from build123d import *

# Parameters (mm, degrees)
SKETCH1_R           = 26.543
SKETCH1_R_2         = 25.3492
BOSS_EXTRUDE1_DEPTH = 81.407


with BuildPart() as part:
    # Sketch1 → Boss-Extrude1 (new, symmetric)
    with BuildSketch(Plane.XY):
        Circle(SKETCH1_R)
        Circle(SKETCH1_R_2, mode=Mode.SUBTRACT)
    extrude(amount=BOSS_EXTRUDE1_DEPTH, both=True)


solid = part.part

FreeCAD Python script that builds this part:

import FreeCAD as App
import Part
import Sketcher
Q = App.Units.Quantity

doc = App.newDocument("Part")
body = doc.addObject("PartDesign::Body", "Body")

sketch1 = body.newObject("Sketcher::SketchObject", "Sketch")
sketch1.AttachmentSupport = (doc.getObject("XY_Plane"), [""])
sketch1.MapMode = "FlatFace"
sketch1.addGeometry(Part.Circle(App.Vector(0, 0, 0), App.Vector(0, 0, 1), 27), False)
sketch1.addGeometry(Part.Circle(App.Vector(0, 0, 0), App.Vector(0, 0, 1), 25), False)
sketch1.addConstraint(Sketcher.Constraint("Coincident", 0, 3, -1, 1))
sketch1.addConstraint(Sketcher.Constraint("Coincident", 1, 3, -1, 1))
sketch1.addConstraint(Sketcher.Constraint("Diameter", 0, Q("2.09 in")))
sketch1.addConstraint(Sketcher.Constraint("Diameter", 1, Q("1.996 in")))
pad1 = body.newObject("PartDesign::Pad", "Pad")
pad1.Profile = sketch1
pad1.Length = Q("6.41 in")
pad1.Midplane = True

doc.recompute()
